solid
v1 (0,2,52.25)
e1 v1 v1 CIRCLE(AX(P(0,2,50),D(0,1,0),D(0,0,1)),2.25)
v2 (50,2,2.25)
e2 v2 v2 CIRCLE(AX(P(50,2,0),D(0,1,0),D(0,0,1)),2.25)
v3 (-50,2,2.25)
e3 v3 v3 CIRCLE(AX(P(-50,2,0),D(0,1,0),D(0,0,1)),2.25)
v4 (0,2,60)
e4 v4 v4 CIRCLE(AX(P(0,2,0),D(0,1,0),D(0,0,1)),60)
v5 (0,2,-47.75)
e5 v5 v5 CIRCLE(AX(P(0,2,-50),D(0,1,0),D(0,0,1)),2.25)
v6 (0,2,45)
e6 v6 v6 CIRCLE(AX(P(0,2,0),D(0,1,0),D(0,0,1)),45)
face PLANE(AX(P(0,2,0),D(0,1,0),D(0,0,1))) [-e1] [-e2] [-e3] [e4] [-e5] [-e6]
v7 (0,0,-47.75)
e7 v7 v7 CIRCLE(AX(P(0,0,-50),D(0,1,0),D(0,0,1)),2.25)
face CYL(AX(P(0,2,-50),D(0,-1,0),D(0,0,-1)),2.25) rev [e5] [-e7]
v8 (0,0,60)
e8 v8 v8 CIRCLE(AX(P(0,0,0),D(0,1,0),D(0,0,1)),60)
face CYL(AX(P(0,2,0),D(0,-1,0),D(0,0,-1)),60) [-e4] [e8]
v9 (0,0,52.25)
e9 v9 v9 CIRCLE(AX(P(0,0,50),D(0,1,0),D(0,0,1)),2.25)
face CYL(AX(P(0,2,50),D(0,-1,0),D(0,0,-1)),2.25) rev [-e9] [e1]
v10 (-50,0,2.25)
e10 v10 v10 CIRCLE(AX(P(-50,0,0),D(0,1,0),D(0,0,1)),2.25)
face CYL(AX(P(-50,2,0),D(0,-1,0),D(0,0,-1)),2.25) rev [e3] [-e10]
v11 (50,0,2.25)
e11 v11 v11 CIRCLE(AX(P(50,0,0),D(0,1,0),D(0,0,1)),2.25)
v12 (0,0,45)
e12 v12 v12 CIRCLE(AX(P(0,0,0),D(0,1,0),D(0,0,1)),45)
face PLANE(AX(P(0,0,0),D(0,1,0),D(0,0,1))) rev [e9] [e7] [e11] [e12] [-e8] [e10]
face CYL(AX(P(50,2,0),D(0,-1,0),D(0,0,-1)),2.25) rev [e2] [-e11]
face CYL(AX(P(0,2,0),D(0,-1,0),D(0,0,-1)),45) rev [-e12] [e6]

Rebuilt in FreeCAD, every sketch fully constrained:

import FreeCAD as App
import Part
import Sketcher
from FreeCAD import Vector

doc = App.newDocument("Part")
body = doc.addObject("PartDesign::Body", "Body")

# Sketch on XZ plane
sketch1 = body.newObject("Sketcher::SketchObject", "Sketch")
sketch1.AttachmentSupport = (doc.getObject("XZ_Plane"), [""])
sketch1.MapMode = "FlatFace"
sketch1.addGeometry(Part.Circle(Vector(0, 0, 0), Vector(0, 0, 1), 60), False)
sketch1.addGeometry(Part.Circle(Vector(0, -50, 0), Vector(0, 0, 1), 2.25), False)
sketch1.addGeometry(Part.Circle(Vector(-50, 0, 0), Vector(0, 0, 1), 2.25), False)
sketch1.addGeometry(Part.Circle(Vector(50, 0, 0), Vector(0, 0, 1), 2.25), False)
sketch1.addGeometry(Part.Circle(Vector(0, 0, 0), Vector(0, 0, 1), 45), False)
sketch1.addGeometry(Part.Circle(Vector(0, 50, 0), Vector(0, 0, 1), 2.25), False)
sketch1.addConstraint(Sketcher.Constraint("Coincident", 0, 3, -1, 1))
sketch1.addConstraint(Sketcher.Constraint("Coincident", 4, 3, -1, 1))
sketch1.addConstraint(Sketcher.Constraint("Equal", 1, 2))
sketch1.addConstraint(Sketcher.Constraint("Equal", 2, 3))
sketch1.addConstraint(Sketcher.Constraint("Equal", 3, 5))
sketch1.addConstraint(Sketcher.Constraint("Symmetric", 2, 3, 3, 3, -1, 1))
sketch1.addConstraint(Sketcher.Constraint("Symmetric", 1, 3, 5, 3, -1, 1))
sketch1.addConstraint(Sketcher.Constraint("PointOnObject", 1, 3, -2))
sketch1.addConstraint(Sketcher.Constraint("PointOnObject", 2, 3, -1))
sketch1.addConstraint(Sketcher.Constraint("Diameter", 0, 120.0))
sketch1.addConstraint(Sketcher.Constraint("Diameter", 4, 90.0))
sketch1.addConstraint(Sketcher.Constraint("Diameter", 1, 4.5))
sketch1.addConstraint(Sketcher.Constraint("DistanceY", 1, 3, -1, 1, 50.0))
sketch1.addConstraint(Sketcher.Constraint("DistanceX", 2, 3, -1, 1, 50.0))
pad1 = body.newObject("PartDesign::Pad", "Pad")
pad1.Profile = sketch1
pad1.Length = 2
pad1.Reversed = True

doc.recompute()
